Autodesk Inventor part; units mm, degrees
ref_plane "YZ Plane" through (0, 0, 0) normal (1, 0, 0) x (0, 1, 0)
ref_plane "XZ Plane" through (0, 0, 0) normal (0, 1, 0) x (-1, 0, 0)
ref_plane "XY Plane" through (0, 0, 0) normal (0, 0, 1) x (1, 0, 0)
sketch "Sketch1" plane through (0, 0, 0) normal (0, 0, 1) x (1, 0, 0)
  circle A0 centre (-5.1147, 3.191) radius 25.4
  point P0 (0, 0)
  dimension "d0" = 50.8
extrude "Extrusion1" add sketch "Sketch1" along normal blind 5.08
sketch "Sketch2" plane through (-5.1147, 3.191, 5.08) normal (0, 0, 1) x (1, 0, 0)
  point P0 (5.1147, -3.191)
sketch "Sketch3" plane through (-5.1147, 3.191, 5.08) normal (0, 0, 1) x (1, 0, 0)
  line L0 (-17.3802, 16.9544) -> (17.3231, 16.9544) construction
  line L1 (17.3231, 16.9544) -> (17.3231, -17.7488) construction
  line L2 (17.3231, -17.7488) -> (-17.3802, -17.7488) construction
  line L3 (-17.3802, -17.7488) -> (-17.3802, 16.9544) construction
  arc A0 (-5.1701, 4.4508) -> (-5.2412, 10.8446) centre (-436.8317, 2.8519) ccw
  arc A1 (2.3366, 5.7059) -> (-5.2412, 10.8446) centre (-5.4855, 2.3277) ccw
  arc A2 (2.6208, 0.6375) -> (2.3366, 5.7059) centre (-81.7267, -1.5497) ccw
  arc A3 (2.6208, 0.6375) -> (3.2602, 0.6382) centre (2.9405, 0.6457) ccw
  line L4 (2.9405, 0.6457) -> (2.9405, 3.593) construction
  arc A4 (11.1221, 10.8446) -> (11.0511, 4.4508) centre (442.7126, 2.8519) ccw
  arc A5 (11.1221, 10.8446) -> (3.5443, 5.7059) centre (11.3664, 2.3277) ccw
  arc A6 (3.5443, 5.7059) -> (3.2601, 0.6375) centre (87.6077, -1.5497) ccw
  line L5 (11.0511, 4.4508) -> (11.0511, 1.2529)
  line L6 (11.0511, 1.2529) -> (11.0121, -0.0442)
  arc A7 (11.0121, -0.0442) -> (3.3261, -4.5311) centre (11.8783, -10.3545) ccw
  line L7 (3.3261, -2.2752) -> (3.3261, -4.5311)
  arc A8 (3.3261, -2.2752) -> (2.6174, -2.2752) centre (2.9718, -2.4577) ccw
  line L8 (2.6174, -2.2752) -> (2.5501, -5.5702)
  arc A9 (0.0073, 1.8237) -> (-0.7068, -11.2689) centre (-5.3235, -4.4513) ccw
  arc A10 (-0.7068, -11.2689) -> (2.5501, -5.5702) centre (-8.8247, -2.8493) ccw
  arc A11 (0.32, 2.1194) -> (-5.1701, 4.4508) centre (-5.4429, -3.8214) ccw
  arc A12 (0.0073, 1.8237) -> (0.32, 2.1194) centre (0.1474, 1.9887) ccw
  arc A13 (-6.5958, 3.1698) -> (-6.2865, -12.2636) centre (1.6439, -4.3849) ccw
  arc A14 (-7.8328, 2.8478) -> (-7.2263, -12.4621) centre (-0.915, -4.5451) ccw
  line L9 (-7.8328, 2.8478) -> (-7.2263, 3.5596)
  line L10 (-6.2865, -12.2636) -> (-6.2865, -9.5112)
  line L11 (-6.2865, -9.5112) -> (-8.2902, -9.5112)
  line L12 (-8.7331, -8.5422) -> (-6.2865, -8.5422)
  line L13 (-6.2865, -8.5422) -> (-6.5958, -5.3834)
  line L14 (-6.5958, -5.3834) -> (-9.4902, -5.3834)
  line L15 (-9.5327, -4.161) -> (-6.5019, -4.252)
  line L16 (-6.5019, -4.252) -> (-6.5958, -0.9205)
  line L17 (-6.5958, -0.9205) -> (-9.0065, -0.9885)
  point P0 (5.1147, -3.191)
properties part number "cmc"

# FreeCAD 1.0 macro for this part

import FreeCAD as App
import Part
import Sketcher
from FreeCAD import Vector
Q = App.Units.Quantity

doc = App.newDocument("Part")
body = doc.addObject("PartDesign::Body", "Body")

sketch1 = body.newObject("Sketcher::SketchObject", "Sketch")
sketch1.AttachmentSupport = (doc.getObject("XY_Plane"), [""])
sketch1.MapMode = "FlatFace"
sketch1.addGeometry(Part.Circle(Vector(-5.1147, 3.191, 0), Vector(0, 0, 1), 25.4), False)
sketch1.addConstraint([
    Sketcher.Constraint("Diameter", 0, Q("2 in")),
    Sketcher.Constraint("DistanceX", 0, 3, -1, 1, Q("5.1147 mm")),
    Sketcher.Constraint("DistanceY", -1, 1, 0, 3, Q("3.191 mm")),
])
pad1 = body.newObject("PartDesign::Pad", "Pad")
pad1.Profile = sketch1
pad1.Length = Q("0.2 in")

doc.recompute()
